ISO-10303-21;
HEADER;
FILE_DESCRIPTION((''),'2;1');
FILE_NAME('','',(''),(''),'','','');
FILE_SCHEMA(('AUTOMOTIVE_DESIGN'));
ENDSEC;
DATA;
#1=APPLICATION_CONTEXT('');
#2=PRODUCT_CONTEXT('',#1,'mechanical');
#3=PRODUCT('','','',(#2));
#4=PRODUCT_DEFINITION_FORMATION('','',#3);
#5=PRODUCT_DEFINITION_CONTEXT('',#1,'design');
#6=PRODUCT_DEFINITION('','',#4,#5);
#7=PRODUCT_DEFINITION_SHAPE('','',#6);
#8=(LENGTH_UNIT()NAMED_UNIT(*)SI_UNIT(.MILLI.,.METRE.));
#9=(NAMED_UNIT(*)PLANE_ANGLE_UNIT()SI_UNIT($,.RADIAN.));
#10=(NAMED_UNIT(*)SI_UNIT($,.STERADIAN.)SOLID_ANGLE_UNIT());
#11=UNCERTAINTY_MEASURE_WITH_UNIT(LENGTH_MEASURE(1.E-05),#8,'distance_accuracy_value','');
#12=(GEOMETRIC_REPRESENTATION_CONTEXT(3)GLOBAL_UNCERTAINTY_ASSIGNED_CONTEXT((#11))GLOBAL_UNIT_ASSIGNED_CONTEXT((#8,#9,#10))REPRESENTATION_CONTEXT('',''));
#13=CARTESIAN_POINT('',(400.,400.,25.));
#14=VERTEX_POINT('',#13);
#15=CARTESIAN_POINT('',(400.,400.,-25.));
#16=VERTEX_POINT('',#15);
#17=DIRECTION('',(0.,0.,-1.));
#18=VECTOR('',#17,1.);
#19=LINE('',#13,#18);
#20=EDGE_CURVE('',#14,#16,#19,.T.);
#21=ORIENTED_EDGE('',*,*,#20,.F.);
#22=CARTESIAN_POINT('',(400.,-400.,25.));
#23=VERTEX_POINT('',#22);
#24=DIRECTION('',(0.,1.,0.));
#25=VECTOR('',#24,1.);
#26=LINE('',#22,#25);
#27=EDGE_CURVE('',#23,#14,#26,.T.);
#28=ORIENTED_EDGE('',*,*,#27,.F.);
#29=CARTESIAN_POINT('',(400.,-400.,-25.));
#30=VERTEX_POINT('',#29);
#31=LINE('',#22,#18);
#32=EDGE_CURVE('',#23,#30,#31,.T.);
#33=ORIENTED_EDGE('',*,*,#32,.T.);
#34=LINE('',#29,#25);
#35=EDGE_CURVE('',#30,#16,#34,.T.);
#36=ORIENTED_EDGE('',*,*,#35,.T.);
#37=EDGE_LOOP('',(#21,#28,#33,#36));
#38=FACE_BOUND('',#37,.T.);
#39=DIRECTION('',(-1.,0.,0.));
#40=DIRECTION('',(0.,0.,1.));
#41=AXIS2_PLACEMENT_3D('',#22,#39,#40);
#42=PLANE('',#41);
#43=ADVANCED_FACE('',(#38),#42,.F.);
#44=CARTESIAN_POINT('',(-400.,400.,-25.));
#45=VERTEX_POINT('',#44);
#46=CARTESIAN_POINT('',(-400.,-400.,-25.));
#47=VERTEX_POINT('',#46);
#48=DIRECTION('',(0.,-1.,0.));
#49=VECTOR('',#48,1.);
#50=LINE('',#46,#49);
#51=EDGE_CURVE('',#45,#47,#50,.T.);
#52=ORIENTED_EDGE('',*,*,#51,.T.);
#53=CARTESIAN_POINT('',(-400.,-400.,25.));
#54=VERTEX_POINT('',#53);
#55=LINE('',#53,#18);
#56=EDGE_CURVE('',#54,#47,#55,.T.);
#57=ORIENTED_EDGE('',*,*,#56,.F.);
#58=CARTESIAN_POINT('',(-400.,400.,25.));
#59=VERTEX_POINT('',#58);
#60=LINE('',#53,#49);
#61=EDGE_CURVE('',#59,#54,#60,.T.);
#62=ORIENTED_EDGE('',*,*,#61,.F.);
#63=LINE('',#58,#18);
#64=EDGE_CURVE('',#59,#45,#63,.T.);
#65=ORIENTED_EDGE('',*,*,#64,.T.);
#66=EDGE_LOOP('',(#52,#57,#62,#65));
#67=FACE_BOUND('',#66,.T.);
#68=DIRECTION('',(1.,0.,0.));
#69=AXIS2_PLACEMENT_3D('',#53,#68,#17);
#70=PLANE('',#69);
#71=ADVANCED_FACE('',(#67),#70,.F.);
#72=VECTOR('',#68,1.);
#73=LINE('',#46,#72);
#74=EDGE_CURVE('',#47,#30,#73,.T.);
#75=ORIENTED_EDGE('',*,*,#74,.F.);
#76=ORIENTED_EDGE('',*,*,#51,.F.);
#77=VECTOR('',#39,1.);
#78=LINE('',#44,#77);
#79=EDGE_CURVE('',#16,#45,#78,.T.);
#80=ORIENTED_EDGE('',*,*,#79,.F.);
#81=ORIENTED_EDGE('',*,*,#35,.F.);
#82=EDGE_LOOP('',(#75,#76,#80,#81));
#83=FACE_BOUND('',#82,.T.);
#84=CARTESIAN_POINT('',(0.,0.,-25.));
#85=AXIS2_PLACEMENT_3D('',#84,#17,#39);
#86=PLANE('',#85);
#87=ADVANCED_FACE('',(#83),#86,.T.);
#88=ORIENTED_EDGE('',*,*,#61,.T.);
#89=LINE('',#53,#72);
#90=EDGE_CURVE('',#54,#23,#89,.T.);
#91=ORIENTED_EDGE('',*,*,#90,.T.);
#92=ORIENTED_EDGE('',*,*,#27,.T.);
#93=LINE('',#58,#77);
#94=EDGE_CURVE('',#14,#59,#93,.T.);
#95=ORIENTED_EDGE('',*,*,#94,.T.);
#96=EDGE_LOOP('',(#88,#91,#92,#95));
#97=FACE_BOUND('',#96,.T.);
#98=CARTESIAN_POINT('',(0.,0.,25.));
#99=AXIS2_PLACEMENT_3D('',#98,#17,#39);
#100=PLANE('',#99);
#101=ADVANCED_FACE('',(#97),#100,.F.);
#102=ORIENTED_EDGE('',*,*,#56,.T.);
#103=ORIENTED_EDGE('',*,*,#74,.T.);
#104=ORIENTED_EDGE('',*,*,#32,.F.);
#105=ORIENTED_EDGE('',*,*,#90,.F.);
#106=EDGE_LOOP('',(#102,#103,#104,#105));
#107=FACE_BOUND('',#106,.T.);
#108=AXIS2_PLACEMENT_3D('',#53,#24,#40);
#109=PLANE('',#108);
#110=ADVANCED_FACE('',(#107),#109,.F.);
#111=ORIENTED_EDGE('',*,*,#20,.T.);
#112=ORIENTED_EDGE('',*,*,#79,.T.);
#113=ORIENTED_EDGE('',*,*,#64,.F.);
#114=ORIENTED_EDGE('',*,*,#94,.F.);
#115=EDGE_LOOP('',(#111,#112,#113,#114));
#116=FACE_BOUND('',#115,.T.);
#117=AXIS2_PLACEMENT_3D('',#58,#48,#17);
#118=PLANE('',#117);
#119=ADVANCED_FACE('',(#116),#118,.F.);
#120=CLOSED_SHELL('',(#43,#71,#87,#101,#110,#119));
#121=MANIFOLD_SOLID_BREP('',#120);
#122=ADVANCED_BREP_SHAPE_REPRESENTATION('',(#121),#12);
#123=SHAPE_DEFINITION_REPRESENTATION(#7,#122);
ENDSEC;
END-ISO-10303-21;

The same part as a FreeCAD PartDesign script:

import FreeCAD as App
import Part
import Sketcher

V = App.Vector
Q = App.Units.Quantity


def add_polygon(sketch, points):
    """Adds a closed chain of lines whose ends are joined by coincident constraints."""
    first, n = sketch.GeometryCount, len(points)
    for a, b in zip(points, points[1:] + points[:1]):
        sketch.addGeometry(Part.LineSegment(App.Vector(*a, 0), App.Vector(*b, 0)), False)
    for i in range(n):
        sketch.addConstraint(Sketcher.Constraint("Coincident", first + i, 2, first + (i + 1) % n, 1))

doc = App.newDocument("Part")
body = doc.addObject("PartDesign::Body", "Body")

# Sketch on XY plane
sketch1 = body.newObject("Sketcher::SketchObject", "Sketch")
sketch1.AttachmentSupport = (doc.getObject("XY_Plane"), [""])
sketch1.MapMode = "FlatFace"
add_polygon(sketch1, [(-400, 400), (-400, -400), (400, -400), (400, 400)])  # lines 0-3
sketch1.addConstraint([
    Sketcher.Constraint("Vertical", 0),
    Sketcher.Constraint("Horizontal", 1),
    Sketcher.Constraint("Vertical", 2),
    Sketcher.Constraint("Horizontal", 3),
    Sketcher.Constraint("Symmetric", 0, 2, 2, 2, -1, 1),
    Sketcher.Constraint("Equal", 3, 0),
    Sketcher.Constraint("DistanceX", 1, 1, 1, 2, Q("800 mm")),
])
pad1 = body.newObject("PartDesign::Pad", "Pad")
pad1.Profile = sketch1
pad1.Length = 50
pad1.Midplane = True

doc.recompute()
